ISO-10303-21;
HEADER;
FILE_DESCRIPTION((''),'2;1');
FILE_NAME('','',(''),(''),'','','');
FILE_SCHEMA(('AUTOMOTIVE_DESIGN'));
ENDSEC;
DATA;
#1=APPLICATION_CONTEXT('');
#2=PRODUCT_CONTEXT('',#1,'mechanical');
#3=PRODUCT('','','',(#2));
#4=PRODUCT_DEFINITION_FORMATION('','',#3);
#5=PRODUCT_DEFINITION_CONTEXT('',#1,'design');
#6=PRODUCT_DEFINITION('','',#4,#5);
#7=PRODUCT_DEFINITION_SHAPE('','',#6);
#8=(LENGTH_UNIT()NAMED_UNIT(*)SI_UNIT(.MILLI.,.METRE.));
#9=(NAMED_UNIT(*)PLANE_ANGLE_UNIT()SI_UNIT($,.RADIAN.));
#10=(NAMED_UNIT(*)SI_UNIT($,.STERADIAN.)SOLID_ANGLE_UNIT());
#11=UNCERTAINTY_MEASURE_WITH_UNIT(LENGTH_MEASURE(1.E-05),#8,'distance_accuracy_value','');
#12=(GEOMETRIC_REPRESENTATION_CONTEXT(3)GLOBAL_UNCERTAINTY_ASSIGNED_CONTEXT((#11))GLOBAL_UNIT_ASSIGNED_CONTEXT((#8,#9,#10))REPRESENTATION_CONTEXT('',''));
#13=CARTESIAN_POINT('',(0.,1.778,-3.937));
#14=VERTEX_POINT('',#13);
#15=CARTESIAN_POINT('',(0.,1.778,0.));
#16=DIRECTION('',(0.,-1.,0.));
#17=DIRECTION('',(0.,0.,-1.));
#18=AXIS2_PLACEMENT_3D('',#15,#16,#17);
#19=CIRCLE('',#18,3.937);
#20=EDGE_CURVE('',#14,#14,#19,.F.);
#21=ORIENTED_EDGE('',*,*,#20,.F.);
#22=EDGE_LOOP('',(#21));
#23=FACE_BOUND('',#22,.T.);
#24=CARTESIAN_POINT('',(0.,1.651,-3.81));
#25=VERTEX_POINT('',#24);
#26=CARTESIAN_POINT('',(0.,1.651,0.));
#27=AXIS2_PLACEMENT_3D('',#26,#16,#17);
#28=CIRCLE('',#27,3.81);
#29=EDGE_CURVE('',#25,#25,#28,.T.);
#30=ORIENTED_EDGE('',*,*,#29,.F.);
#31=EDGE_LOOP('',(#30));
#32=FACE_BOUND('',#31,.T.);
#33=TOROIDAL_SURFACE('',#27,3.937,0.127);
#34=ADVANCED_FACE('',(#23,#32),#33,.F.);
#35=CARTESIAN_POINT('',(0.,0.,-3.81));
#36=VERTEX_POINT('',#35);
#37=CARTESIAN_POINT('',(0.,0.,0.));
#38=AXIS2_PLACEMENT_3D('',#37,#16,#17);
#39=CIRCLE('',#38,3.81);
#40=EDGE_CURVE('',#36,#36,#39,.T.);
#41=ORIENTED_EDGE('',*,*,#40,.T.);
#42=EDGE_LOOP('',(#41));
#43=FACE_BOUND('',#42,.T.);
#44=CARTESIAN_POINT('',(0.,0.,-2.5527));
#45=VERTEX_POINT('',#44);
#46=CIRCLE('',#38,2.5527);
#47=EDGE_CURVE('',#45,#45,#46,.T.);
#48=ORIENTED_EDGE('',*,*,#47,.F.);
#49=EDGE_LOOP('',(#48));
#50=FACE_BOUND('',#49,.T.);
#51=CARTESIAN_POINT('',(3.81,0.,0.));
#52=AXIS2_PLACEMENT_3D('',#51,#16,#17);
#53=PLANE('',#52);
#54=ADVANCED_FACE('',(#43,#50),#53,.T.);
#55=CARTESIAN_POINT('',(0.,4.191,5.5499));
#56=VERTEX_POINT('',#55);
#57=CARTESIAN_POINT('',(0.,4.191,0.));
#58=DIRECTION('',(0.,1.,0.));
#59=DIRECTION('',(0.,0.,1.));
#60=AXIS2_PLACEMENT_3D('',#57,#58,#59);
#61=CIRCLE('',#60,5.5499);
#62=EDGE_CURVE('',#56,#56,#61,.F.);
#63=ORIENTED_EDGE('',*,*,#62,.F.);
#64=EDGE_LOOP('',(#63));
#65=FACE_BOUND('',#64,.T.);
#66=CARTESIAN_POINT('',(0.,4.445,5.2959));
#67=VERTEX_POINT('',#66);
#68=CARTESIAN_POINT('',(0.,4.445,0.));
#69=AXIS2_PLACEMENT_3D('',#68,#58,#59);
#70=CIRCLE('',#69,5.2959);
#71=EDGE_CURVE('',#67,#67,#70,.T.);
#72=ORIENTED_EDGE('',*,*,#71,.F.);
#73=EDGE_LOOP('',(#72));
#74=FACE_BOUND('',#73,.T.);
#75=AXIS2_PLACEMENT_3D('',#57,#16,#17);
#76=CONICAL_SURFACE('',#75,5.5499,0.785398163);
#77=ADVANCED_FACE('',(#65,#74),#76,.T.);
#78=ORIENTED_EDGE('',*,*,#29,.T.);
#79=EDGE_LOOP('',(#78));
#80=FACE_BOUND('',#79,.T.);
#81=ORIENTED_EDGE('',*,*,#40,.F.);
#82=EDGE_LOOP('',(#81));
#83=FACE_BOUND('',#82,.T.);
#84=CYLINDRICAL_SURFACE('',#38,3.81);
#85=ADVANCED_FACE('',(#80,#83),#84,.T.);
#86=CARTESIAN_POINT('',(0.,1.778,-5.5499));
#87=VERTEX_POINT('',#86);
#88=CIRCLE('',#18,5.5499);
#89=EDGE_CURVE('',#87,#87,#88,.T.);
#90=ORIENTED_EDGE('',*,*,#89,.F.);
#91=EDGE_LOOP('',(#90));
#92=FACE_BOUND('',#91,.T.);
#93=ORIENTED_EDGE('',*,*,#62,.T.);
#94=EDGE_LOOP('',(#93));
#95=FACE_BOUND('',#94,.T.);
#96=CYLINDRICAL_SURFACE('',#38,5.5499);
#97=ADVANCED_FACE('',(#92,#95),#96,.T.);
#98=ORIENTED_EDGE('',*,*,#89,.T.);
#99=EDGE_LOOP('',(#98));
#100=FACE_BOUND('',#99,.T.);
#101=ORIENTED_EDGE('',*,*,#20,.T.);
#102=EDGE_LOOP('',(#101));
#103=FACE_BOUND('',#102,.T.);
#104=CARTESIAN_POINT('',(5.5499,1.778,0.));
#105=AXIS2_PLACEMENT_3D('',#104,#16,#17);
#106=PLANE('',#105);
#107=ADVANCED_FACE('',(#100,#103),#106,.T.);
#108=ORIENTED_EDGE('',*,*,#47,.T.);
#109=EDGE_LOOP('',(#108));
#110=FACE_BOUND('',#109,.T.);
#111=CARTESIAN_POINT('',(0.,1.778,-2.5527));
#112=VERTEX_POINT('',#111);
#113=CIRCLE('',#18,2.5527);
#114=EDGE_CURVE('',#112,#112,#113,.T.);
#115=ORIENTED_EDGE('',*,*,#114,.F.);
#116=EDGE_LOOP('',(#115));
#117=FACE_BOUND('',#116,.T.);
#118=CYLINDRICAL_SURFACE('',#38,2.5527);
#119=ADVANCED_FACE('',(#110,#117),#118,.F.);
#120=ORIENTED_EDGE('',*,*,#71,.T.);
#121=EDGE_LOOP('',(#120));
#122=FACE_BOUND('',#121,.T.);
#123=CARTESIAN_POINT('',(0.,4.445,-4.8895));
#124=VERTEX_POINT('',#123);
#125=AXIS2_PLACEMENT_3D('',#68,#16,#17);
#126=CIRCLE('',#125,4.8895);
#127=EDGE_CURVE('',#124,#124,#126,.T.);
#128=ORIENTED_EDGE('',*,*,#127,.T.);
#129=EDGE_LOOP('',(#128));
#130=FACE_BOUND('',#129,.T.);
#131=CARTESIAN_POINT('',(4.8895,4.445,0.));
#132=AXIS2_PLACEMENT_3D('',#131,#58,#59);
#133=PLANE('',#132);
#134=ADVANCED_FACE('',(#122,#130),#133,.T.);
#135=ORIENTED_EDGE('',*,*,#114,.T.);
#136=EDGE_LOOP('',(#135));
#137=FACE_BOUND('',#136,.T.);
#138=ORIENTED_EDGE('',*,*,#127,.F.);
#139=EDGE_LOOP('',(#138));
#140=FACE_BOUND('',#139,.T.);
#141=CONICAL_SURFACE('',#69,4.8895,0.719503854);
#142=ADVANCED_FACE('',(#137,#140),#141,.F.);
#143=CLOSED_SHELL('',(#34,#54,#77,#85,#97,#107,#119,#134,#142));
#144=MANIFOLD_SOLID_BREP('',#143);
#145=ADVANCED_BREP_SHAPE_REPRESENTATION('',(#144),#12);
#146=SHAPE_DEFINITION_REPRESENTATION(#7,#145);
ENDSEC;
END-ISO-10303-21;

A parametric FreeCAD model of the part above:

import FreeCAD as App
import Part
import Sketcher
from FreeCAD import Vector
Q = App.Units.Quantity


def edges_at(feature, points):
    """Names of the edges that pass closest to the given points."""
    edges = feature.Shape.Edges
    near = lambda p: min(range(len(edges)), key=lambda i: edges[i].distToShape(Part.Vertex(*p))[0])
    return sorted({f"Edge{near(p) + 1}" for p in points})

doc = App.newDocument("Part")
body = doc.addObject("PartDesign::Body", "Body")

# Sketch on XY plane
sketch1 = doc.addObject("Sketcher::SketchObject", "Sketch")
body.addObject(sketch1)
sketch1.AttachmentSupport = (doc.XY_Plane, [""])
sketch1.MapMode = "FlatFace"
sketch1.addGeometry([
    Part.LineSegment(Vector(2.5527, 1.778, 0), Vector(2.5527, 0, 0)),  # 0
    Part.LineSegment(Vector(2.5527, 0, 0), Vector(3.81, 0, 0)),  # 1
    Part.LineSegment(Vector(3.81, 0, 0), Vector(3.81, 1.778, 0)),  # 2
    Part.LineSegment(Vector(3.81, 1.778, 0), Vector(5.5499, 1.778, 0)),  # 3
    Part.LineSegment(Vector(5.5499, 1.778, 0), Vector(5.5499, 4.445, 0)),  # 4
    Part.LineSegment(Vector(5.5499, 4.445, 0), Vector(4.8895, 4.445, 0)),  # 5
    Part.LineSegment(Vector(4.8895, 4.445, 0), Vector(2.5527, 1.778, 0)),  # 6
], False)
sketch1.addConstraint([
    Sketcher.Constraint("Coincident", 0, 2, 1, 1),
    Sketcher.Constraint("Coincident", 1, 2, 2, 1),
    Sketcher.Constraint("Coincident", 2, 2, 3, 1),
    Sketcher.Constraint("Coincident", 3, 2, 4, 1),
    Sketcher.Constraint("Coincident", 4, 2, 5, 1),
    Sketcher.Constraint("Coincident", 5, 2, 6, 1),
    Sketcher.Constraint("Coincident", 6, 2, 0, 1),
    Sketcher.Constraint("Vertical", 0),
    Sketcher.Constraint("Horizontal", 1),
    Sketcher.Constraint("Vertical", 2),
    Sketcher.Constraint("Horizontal", 3),
    Sketcher.Constraint("Vertical", 4),
    Sketcher.Constraint("Horizontal", 5),
    Sketcher.Constraint("PointOnObject", 0, 2, -1),
    Sketcher.Constraint("Horizontal", 3, 2, 6, 2),
    Sketcher.Constraint("DistanceY", 0, 2, 0, 1, Q("0.07 in")),
    Sketcher.Constraint("DistanceX", 5, 2, 5, 1, Q("0.026 in")),
    Sketcher.Constraint("DistanceY", 4, 1, 4, 2, Q("0.105 in")),
    Sketcher.Constraint("DistanceX", -1, 1, 1, 2, Q("0.15 in")),
    Sketcher.Constraint("DistanceX", 1, 1, 1, 2, Q("0.0495 in")),
    Sketcher.Constraint("DistanceX", 3, 1, 3, 2, Q("0.0685 in")),
])
revolution = doc.addObject("PartDesign::Revolution", "Revolution")
body.addObject(revolution)
revolution.Profile = sketch1
revolution.ReferenceAxis = (sketch1, ["V_Axis"])
revolution.Angle = 360
doc.recompute()

chamfer = doc.addObject("PartDesign::Chamfer", "Chamfer")
body.addObject(chamfer)
chamfer.Base = (revolution, edges_at(revolution, [(-5.55, 4.445, 0)]))
chamfer.Size = Q("0.01 in")
doc.recompute()

fillet = doc.addObject("PartDesign::Fillet", "Fillet")
body.addObject(fillet)
fillet.Base = (chamfer, edges_at(chamfer, [(-3.81, 1.778, 0)]))
fillet.Radius = Q("0.005 in")

doc.recompute()
